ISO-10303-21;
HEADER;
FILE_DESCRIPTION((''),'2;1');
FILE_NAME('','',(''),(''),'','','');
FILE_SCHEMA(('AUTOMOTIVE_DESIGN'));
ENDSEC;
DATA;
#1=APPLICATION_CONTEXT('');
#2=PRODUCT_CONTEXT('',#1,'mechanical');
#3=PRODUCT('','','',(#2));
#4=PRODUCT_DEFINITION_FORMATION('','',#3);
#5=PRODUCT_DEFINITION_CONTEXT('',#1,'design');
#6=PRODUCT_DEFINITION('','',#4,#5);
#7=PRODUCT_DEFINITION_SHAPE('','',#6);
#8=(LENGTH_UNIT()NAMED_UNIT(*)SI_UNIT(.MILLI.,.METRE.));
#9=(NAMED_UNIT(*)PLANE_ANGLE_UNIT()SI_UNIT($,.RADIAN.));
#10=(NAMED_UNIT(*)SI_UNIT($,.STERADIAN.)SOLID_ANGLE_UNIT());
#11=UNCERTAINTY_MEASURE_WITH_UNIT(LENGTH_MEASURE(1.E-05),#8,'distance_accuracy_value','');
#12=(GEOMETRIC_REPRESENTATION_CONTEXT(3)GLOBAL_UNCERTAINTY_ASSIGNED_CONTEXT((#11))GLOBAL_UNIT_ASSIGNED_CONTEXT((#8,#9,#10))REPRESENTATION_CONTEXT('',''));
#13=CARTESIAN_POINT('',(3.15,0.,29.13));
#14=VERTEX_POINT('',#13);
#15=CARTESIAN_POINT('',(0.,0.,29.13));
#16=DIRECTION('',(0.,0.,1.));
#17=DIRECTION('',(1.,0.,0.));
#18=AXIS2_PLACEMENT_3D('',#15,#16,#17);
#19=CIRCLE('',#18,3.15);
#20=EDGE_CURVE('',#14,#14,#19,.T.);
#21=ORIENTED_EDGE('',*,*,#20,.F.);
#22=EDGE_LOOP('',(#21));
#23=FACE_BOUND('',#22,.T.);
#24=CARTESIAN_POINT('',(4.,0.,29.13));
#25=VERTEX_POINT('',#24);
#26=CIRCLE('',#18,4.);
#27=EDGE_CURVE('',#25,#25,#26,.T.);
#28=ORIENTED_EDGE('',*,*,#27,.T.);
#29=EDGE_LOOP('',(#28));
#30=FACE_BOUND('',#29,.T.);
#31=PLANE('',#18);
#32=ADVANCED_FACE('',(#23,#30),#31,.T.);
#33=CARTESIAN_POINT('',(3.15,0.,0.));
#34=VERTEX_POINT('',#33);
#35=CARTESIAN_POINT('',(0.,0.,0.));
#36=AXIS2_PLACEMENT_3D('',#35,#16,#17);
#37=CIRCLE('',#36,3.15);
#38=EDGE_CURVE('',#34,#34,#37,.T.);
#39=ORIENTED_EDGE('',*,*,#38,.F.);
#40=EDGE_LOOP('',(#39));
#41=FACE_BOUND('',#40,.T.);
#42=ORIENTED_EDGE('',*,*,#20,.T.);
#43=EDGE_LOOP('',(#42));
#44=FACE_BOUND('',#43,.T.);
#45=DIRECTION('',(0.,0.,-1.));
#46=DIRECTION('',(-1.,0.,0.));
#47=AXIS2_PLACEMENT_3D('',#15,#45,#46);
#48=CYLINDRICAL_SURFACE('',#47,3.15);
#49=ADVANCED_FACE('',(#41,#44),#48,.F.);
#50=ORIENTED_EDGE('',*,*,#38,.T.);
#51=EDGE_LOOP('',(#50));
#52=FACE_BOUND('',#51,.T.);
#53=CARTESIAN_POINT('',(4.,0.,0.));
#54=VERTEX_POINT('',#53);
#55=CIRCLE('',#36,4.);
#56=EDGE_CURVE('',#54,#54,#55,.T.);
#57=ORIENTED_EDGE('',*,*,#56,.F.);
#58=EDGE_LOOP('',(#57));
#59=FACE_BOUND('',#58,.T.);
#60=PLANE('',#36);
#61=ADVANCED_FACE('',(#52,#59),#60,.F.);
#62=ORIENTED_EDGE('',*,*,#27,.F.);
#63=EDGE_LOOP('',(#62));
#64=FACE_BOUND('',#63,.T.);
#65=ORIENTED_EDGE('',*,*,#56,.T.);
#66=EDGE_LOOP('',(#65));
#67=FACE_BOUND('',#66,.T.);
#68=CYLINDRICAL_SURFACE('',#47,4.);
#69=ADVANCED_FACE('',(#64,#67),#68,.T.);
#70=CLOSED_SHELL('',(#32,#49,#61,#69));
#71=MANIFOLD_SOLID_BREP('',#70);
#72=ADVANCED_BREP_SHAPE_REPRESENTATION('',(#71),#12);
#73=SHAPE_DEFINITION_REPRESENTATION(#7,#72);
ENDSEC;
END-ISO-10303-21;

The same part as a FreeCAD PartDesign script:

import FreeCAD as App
import Part
import Sketcher
from FreeCAD import Vector
Q = App.Units.Quantity

doc = App.newDocument("Part")
body = doc.addObject("PartDesign::Body", "Body")

# Sketch on XY plane
sketch1 = doc.addObject("Sketcher::SketchObject", "Sketch")
body.addObject(sketch1)
sketch1.AttachmentSupport = (doc.XY_Plane, [""])
sketch1.MapMode = "FlatFace"
sketch1.addGeometry([
    Part.Circle(Vector(0, 0, 0), Vector(0, 0, 1), 4),
    Part.Circle(Vector(0, 0, 0), Vector(0, 0, 1), 3.15),
], False)
sketch1.addConstraint([
    Sketcher.Constraint("Coincident", 0, 3, -1, 1),
    Sketcher.Constraint("Coincident", 1, 3, -1, 1),
    Sketcher.Constraint("Diameter", 0, Q("8 mm")),
    Sketcher.Constraint("Diameter", 1, Q("6.3 mm")),
])
pad1 = doc.addObject("PartDesign::Pad", "Pad")
body.addObject(pad1)
pad1.Profile = sketch1
pad1.Length = 29.13

doc.recompute()
